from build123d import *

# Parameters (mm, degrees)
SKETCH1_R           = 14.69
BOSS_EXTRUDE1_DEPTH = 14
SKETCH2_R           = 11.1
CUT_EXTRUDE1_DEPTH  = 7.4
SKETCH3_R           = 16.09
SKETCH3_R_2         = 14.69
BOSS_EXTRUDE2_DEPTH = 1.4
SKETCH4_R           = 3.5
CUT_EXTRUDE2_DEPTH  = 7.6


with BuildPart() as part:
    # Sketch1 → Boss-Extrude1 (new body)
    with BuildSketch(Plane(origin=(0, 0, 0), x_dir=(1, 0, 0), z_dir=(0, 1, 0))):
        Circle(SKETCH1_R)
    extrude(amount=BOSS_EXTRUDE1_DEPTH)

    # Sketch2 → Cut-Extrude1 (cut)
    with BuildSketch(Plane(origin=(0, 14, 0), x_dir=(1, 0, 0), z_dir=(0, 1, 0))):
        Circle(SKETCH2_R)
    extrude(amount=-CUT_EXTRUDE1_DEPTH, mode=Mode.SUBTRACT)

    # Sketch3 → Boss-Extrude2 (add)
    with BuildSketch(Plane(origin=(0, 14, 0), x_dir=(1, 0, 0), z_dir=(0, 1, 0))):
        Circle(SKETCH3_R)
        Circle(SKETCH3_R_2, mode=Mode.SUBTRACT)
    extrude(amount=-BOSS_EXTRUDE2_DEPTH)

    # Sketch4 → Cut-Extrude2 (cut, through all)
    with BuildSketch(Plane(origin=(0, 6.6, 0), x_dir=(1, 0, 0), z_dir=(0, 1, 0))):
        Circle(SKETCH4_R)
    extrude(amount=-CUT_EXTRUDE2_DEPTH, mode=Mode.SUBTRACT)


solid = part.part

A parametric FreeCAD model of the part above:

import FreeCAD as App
import Part
import Sketcher

doc = App.newDocument("Part")
body = doc.addObject("PartDesign::Body", "Body")

sketch1 = body.newObject("Sketcher::SketchObject", "Sketch")
sketch1.AttachmentSupport = (doc.getObject("XZ_Plane"), [""])
sketch1.MapMode = "FlatFace"
sketch1.addGeometry(Part.Circle(App.Vector(0, 0, 0), App.Vector(0, 0, 1), 14.69), False)
sketch1.addConstraint([
    Sketcher.Constraint("Coincident", 0, 3, -1, 1),
    Sketcher.Constraint("Diameter", 0, 29.38),
])
pad1 = body.newObject("PartDesign::Pad", "Pad")
pad1.Profile = sketch1
pad1.Length = 14
pad1.Reversed = True

sketch2 = body.newObject("Sketcher::SketchObject", "Sketch001")
sketch2.AttachmentSupport = (doc.getObject("XZ_Plane"), [""])
sketch2.MapMode = "FlatFace"
sketch2.AttachmentOffset = App.Placement(App.Vector(0, 0, -14), App.Rotation())
sketch2.addGeometry(Part.Circle(App.Vector(0, 0, 0), App.Vector(0, 0, 1), 11.1), False)
sketch2.addConstraint([
    Sketcher.Constraint("Coincident", 0, 3, -1, 1),
    Sketcher.Constraint("Diameter", 0, 22.2),
])
pocket1 = body.newObject("PartDesign::Pocket", "Pocket")
pocket1.Profile = sketch2
pocket1.Length = 7.4
pocket1.Reversed = True

sketch3 = body.newObject("Sketcher::SketchObject", "Sketch002")
sketch3.AttachmentSupport = (doc.getObject("XZ_Plane"), [""])
sketch3.MapMode = "FlatFace"
sketch3.AttachmentOffset = App.Placement(App.Vector(0, 0, -14), App.Rotation())
sketch3.addGeometry([
    Part.Circle(App.Vector(0, 0, 0), App.Vector(0, 0, 1), 16.09),
    Part.Circle(App.Vector(0, 0, 0), App.Vector(0, 0, 1), 14.69),
], False)
sketch3.addConstraint([
    Sketcher.Constraint("Coincident", 0, 3, -1, 1),
    Sketcher.Constraint("Coincident", 1, 3, -1, 1),
    Sketcher.Constraint("Diameter", 0, 32.18),
    Sketcher.Constraint("Diameter", 1, 29.38),
])
pad2 = body.newObject("PartDesign::Pad", "Pad001")
pad2.Profile = sketch3
pad2.Length = 1.4

sketch4 = body.newObject("Sketcher::SketchObject", "Sketch003")
sketch4.AttachmentSupport = (doc.getObject("XZ_Plane"), [""])
sketch4.MapMode = "FlatFace"
sketch4.AttachmentOffset = App.Placement(App.Vector(0, 0, -6.6), App.Rotation())
sketch4.addGeometry(Part.Circle(App.Vector(0, 0, 0), App.Vector(0, 0, 1), 3.5), False)
sketch4.addConstraint([
    Sketcher.Constraint("Coincident", 0, 3, -1, 1),
    Sketcher.Constraint("Diameter", 0, 7.0),
])
pocket2 = body.newObject("PartDesign::Pocket", "Pocket001")
pocket2.Profile = sketch4
pocket2.Type = "ThroughAll"
pocket2.Reversed = True

doc.recompute()
